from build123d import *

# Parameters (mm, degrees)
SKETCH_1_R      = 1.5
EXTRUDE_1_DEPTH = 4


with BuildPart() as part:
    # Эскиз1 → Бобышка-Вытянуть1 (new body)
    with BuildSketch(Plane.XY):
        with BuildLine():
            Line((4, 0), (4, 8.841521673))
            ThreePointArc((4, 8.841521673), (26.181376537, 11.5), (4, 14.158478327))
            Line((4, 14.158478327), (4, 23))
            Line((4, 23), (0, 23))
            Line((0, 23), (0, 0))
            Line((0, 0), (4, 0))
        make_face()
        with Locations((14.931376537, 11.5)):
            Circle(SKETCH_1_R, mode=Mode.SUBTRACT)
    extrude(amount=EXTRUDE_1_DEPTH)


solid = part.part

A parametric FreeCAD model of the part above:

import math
import FreeCAD as App
import Part
import Sketcher
from FreeCAD import Vector

doc = App.newDocument("Part")
body = doc.addObject("PartDesign::Body", "Body")

# Sketch on XY plane
sketch1 = body.newObject("Sketcher::SketchObject", "Sketch")
sketch1.AttachmentSupport = (doc.getObject("XY_Plane"), [""])
sketch1.MapMode = "FlatFace"
sketch1.addGeometry([
    Part.LineSegment(Vector(4, 0, 0), Vector(4, 8.8, 0)),  # 0
    Part.ArcOfCircle(Part.Circle(Vector(14.9, 11.5, 0), Vector(0, 0, 1), 11.2), math.radians(-166), math.radians(166)),  # 1
    Part.LineSegment(Vector(4, 14.2, 0), Vector(4, 23, 0)),  # 2
    Part.LineSegment(Vector(4, 23, 0), Vector(0, 23, 0)),  # 3
    Part.LineSegment(Vector(0, 23, 0), Vector(0, 0, 0)),  # 4
    Part.LineSegment(Vector(0, 0, 0), Vector(4, 0, 0)),  # 5
    Part.Circle(Vector(14.9, 11.5, 0), Vector(0, 0, 1), 1.5),  # 6
], False)
sketch1.addConstraint([
    Sketcher.Constraint("Coincident", 0, 2, 1, 1),
    Sketcher.Constraint("Coincident", 1, 2, 2, 1),
    Sketcher.Constraint("Coincident", 2, 2, 3, 1),
    Sketcher.Constraint("Coincident", 3, 2, 4, 1),
    Sketcher.Constraint("Coincident", 4, 2, 5, 1),
    Sketcher.Constraint("Coincident", 5, 2, 0, 1),
    Sketcher.Constraint("Vertical", 0),
    Sketcher.Constraint("Vertical", 2),
    Sketcher.Constraint("Horizontal", 3),
    Sketcher.Constraint("Vertical", 4),
    Sketcher.Constraint("Horizontal", 5),
    Sketcher.Constraint("Coincident", 4, 2, -1, 1),
    Sketcher.Constraint("Coincident", 6, 3, 1, 3),
    Sketcher.Constraint("Vertical", 0, 2, 1, 2),
    Sketcher.Constraint("Equal", 0, 2),
    Sketcher.Constraint("Diameter", 6, 3.0),
    Sketcher.Constraint("DistanceX", 3, 2, 3, 1, 4.0),
    Sketcher.Constraint("DistanceY", 4, 2, 4, 1, 23.0),
    Sketcher.Constraint("Radius", 1, 11.25),
    Sketcher.Constraint("DistanceY", 0, 1, 0, 2, 8.841522),
])
pad1 = body.newObject("PartDesign::Pad", "Pad")
pad1.Profile = sketch1
pad1.Length = 4

doc.recompute()
